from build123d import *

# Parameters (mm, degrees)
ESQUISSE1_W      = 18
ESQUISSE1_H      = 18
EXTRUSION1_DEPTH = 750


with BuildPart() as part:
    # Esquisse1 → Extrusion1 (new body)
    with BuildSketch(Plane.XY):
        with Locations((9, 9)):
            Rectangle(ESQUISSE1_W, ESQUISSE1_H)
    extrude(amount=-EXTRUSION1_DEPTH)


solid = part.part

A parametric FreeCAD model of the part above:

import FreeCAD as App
import Part
import Sketcher

V = App.Vector
Q = App.Units.Quantity

doc = App.newDocument("Part")
body = doc.addObject("PartDesign::Body", "Body")

# Sketch on XY plane
sketch1 = doc.addObject("Sketcher::SketchObject", "Sketch")
body.addObject(sketch1)
sketch1.AttachmentSupport = (doc.XY_Plane, [""])
sketch1.MapMode = "FlatFace"
sketch1.addGeometry([
    Part.LineSegment(V(0, 18, 0), V(0, 0, 0)),
    Part.LineSegment(V(0, 0, 0), V(18, 0, 0)),
    Part.LineSegment(V(18, 0, 0), V(18, 18, 0)),
    Part.LineSegment(V(18, 18, 0), V(0, 18, 0)),
], False)
sketch1.addConstraint([
    Sketcher.Constraint("Coincident", 0, 2, 1, 1),
    Sketcher.Constraint("Coincident", 1, 2, 2, 1),
    Sketcher.Constraint("Coincident", 2, 2, 3, 1),
    Sketcher.Constraint("Coincident", 3, 2, 0, 1),
    Sketcher.Constraint("Vertical", 0),
    Sketcher.Constraint("Horizontal", 1),
    Sketcher.Constraint("Vertical", 2),
    Sketcher.Constraint("Horizontal", 3),
    Sketcher.Constraint("Coincident", 0, 2, -1, 1),
    Sketcher.Constraint("Equal", 3, 0),
    Sketcher.Constraint("DistanceX", 1, 1, 1, 2, Q("18 mm")),
])
pad1 = doc.addObject("PartDesign::Pad", "Pad")
body.addObject(pad1)
pad1.Profile = sketch1
pad1.Length = 750
pad1.Reversed = True

doc.recompute()
